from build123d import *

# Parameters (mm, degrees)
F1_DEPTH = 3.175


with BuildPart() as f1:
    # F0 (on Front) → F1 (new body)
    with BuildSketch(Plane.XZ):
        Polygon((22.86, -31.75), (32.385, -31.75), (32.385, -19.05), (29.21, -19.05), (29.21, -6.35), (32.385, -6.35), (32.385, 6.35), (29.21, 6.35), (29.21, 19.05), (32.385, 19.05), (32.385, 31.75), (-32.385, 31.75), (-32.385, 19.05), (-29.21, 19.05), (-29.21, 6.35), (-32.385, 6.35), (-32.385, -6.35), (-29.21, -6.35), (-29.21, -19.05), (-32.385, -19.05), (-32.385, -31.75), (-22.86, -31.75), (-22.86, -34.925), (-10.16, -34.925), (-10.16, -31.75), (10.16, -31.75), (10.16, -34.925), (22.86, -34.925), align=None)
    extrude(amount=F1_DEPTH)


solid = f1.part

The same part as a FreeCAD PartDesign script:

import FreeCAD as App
import Part
import Sketcher

V = App.Vector
Q = App.Units.Quantity


def add_polygon(sketch, points):
    """Adds a closed chain of lines whose ends are joined by coincident constraints."""
    first, n = sketch.GeometryCount, len(points)
    for a, b in zip(points, points[1:] + points[:1]):
        sketch.addGeometry(Part.LineSegment(App.Vector(*a, 0), App.Vector(*b, 0)), False)
    for i in range(n):
        sketch.addConstraint(Sketcher.Constraint("Coincident", first + i, 2, first + (i + 1) % n, 1))

doc = App.newDocument("Part")
params = doc.addObject("Spreadsheet::Sheet", "Params")
for row, (alias, value) in enumerate([
    ("sketch1_width", "0.5 in"),
    ("sketch1_width2", "0.8 in"),
    ("sketch1_width3", "2.55 in"),
    ("pad1_length", "0.125 in"),
], start=1):
    params.set(f"A{row}", alias)
    params.set(f"B{row}", "=" + value)
    params.setAlias(f"B{row}", alias)

body = doc.addObject("PartDesign::Body", "Body")

# Sketch on XZ plane
sketch1 = body.newObject("Sketcher::SketchObject", "Sketch")
sketch1.AttachmentSupport = (doc.getObject("XZ_Plane"), [""])
sketch1.MapMode = "FlatFace"
add_polygon(sketch1, [(22.9, -31.8), (32.4, -31.8), (32.4, -19.1), (29.2, -19.1), (29.2, -6.3), (32.4, -6.3), (32.4, 6.3), (29.2, 6.3), (29.2, 19.1), (32.4, 19.1), (32.4, 31.8), (-32.4, 31.8), (-32.4, 19.1), (-29.2, 19.1), (-29.2, 6.3), (-32.4, 6.3), (-32.4, -6.3), (-29.2, -6.3), (-29.2, -19.1), (-32.4, -19.1), (-32.4, -31.8), (-22.9, -31.8), (-22.9, -34.9), (-10.2, -34.9), (-10.2, -31.8), (10.2, -31.8), (10.2, -34.9), (22.9, -34.9)])  # lines 0-27
sketch1.addConstraint(Sketcher.Constraint("Horizontal", 0))
sketch1.addConstraint(Sketcher.Constraint("Vertical", 1))
sketch1.addConstraint(Sketcher.Constraint("Horizontal", 2))
sketch1.addConstraint(Sketcher.Constraint("Vertical", 3))
sketch1.addConstraint(Sketcher.Constraint("Horizontal", 4))
sketch1.addConstraint(Sketcher.Constraint("Vertical", 5))
sketch1.addConstraint(Sketcher.Constraint("Horizontal", 6))
sketch1.addConstraint(Sketcher.Constraint("Vertical", 7))
sketch1.addConstraint(Sketcher.Constraint("Horizontal", 8))
sketch1.addConstraint(Sketcher.Constraint("Vertical", 9))
sketch1.addConstraint(Sketcher.Constraint("Horizontal", 10))
sketch1.addConstraint(Sketcher.Constraint("Vertical", 11))
sketch1.addConstraint(Sketcher.Constraint("Horizontal", 12))
sketch1.addConstraint(Sketcher.Constraint("Vertical", 13))
sketch1.addConstraint(Sketcher.Constraint("Horizontal", 14))
sketch1.addConstraint(Sketcher.Constraint("Vertical", 15))
sketch1.addConstraint(Sketcher.Constraint("Horizontal", 16))
sketch1.addConstraint(Sketcher.Constraint("Vertical", 17))
sketch1.addConstraint(Sketcher.Constraint("Horizontal", 18))
sketch1.addConstraint(Sketcher.Constraint("Vertical", 19))
sketch1.addConstraint(Sketcher.Constraint("Horizontal", 20))
sketch1.addConstraint(Sketcher.Constraint("Vertical", 21))
sketch1.addConstraint(Sketcher.Constraint("Horizontal", 22))
sketch1.addConstraint(Sketcher.Constraint("Vertical", 23))
sketch1.addConstraint(Sketcher.Constraint("Horizontal", 24))
sketch1.addConstraint(Sketcher.Constraint("Vertical", 25))
sketch1.addConstraint(Sketcher.Constraint("Horizontal", 26))
sketch1.addConstraint(Sketcher.Constraint("Vertical", 27))
sketch1.addConstraint(Sketcher.Constraint("Symmetric", 0, 2, 10, 2, -1, 1))
sketch1.addConstraint(Sketcher.Constraint("Symmetric", 2, 2, 12, 2, -1, 1))
sketch1.addConstraint(Sketcher.Constraint("Symmetric", 4, 2, 14, 2, -1, 1))
sketch1.addConstraint(Sketcher.Constraint("Symmetric", 6, 2, 16, 2, -1, 1))
sketch1.addConstraint(Sketcher.Constraint("Symmetric", 8, 2, 18, 2, -1, 1))
sketch1.addConstraint(Sketcher.Constraint("Symmetric", 8, 2, 11, 2, -2))
sketch1.addConstraint(Sketcher.Constraint("Symmetric", 6, 2, 13, 2, -2))
sketch1.addConstraint(Sketcher.Constraint("Symmetric", 22, 2, 25, 2, -2))
sketch1.addConstraint(Sketcher.Constraint("Symmetric", 20, 2, 27, 2, -2))
sketch1.addConstraint(Sketcher.Constraint("Horizontal", 20, 2, 23, 2))
sketch1.addConstraint(Sketcher.Constraint("Vertical", 1, 2, 4, 2))
sketch1.addConstraint(Sketcher.Constraint("Equal", 26, 1))
sketch1.addConstraint(Sketcher.Constraint("Equal", 1, 3))
sketch1.addConstraint(Sketcher.Constraint("Equal", 3, 5))
sketch1.addConstraint(Sketcher.Constraint("Equal", 18, 21))
sketch1.addConstraint(Sketcher.Constraint("DistanceX", 22, 1, 22, 2, Q("0.5 in")))
sketch1.addConstraint(Sketcher.Constraint("DistanceX", 24, 1, 24, 2, Q("0.8 in")))
sketch1.addConstraint(Sketcher.Constraint("DistanceX", 10, 2, 10, 1, Q("2.55 in")))
sketch1.addConstraint(Sketcher.Constraint("DistanceX", 12, 2, 7, 2, Q("2.3 in")))
sketch1.setExpression("Constraints[71]", "Params.sketch1_width")
sketch1.setExpression("Constraints[72]", "Params.sketch1_width2")
sketch1.setExpression("Constraints[73]", "Params.sketch1_width3")
pad1 = body.newObject("PartDesign::Pad", "Pad")
pad1.Profile = sketch1
pad1.setExpression("Length", "Params.pad1_length")

doc.recompute()
